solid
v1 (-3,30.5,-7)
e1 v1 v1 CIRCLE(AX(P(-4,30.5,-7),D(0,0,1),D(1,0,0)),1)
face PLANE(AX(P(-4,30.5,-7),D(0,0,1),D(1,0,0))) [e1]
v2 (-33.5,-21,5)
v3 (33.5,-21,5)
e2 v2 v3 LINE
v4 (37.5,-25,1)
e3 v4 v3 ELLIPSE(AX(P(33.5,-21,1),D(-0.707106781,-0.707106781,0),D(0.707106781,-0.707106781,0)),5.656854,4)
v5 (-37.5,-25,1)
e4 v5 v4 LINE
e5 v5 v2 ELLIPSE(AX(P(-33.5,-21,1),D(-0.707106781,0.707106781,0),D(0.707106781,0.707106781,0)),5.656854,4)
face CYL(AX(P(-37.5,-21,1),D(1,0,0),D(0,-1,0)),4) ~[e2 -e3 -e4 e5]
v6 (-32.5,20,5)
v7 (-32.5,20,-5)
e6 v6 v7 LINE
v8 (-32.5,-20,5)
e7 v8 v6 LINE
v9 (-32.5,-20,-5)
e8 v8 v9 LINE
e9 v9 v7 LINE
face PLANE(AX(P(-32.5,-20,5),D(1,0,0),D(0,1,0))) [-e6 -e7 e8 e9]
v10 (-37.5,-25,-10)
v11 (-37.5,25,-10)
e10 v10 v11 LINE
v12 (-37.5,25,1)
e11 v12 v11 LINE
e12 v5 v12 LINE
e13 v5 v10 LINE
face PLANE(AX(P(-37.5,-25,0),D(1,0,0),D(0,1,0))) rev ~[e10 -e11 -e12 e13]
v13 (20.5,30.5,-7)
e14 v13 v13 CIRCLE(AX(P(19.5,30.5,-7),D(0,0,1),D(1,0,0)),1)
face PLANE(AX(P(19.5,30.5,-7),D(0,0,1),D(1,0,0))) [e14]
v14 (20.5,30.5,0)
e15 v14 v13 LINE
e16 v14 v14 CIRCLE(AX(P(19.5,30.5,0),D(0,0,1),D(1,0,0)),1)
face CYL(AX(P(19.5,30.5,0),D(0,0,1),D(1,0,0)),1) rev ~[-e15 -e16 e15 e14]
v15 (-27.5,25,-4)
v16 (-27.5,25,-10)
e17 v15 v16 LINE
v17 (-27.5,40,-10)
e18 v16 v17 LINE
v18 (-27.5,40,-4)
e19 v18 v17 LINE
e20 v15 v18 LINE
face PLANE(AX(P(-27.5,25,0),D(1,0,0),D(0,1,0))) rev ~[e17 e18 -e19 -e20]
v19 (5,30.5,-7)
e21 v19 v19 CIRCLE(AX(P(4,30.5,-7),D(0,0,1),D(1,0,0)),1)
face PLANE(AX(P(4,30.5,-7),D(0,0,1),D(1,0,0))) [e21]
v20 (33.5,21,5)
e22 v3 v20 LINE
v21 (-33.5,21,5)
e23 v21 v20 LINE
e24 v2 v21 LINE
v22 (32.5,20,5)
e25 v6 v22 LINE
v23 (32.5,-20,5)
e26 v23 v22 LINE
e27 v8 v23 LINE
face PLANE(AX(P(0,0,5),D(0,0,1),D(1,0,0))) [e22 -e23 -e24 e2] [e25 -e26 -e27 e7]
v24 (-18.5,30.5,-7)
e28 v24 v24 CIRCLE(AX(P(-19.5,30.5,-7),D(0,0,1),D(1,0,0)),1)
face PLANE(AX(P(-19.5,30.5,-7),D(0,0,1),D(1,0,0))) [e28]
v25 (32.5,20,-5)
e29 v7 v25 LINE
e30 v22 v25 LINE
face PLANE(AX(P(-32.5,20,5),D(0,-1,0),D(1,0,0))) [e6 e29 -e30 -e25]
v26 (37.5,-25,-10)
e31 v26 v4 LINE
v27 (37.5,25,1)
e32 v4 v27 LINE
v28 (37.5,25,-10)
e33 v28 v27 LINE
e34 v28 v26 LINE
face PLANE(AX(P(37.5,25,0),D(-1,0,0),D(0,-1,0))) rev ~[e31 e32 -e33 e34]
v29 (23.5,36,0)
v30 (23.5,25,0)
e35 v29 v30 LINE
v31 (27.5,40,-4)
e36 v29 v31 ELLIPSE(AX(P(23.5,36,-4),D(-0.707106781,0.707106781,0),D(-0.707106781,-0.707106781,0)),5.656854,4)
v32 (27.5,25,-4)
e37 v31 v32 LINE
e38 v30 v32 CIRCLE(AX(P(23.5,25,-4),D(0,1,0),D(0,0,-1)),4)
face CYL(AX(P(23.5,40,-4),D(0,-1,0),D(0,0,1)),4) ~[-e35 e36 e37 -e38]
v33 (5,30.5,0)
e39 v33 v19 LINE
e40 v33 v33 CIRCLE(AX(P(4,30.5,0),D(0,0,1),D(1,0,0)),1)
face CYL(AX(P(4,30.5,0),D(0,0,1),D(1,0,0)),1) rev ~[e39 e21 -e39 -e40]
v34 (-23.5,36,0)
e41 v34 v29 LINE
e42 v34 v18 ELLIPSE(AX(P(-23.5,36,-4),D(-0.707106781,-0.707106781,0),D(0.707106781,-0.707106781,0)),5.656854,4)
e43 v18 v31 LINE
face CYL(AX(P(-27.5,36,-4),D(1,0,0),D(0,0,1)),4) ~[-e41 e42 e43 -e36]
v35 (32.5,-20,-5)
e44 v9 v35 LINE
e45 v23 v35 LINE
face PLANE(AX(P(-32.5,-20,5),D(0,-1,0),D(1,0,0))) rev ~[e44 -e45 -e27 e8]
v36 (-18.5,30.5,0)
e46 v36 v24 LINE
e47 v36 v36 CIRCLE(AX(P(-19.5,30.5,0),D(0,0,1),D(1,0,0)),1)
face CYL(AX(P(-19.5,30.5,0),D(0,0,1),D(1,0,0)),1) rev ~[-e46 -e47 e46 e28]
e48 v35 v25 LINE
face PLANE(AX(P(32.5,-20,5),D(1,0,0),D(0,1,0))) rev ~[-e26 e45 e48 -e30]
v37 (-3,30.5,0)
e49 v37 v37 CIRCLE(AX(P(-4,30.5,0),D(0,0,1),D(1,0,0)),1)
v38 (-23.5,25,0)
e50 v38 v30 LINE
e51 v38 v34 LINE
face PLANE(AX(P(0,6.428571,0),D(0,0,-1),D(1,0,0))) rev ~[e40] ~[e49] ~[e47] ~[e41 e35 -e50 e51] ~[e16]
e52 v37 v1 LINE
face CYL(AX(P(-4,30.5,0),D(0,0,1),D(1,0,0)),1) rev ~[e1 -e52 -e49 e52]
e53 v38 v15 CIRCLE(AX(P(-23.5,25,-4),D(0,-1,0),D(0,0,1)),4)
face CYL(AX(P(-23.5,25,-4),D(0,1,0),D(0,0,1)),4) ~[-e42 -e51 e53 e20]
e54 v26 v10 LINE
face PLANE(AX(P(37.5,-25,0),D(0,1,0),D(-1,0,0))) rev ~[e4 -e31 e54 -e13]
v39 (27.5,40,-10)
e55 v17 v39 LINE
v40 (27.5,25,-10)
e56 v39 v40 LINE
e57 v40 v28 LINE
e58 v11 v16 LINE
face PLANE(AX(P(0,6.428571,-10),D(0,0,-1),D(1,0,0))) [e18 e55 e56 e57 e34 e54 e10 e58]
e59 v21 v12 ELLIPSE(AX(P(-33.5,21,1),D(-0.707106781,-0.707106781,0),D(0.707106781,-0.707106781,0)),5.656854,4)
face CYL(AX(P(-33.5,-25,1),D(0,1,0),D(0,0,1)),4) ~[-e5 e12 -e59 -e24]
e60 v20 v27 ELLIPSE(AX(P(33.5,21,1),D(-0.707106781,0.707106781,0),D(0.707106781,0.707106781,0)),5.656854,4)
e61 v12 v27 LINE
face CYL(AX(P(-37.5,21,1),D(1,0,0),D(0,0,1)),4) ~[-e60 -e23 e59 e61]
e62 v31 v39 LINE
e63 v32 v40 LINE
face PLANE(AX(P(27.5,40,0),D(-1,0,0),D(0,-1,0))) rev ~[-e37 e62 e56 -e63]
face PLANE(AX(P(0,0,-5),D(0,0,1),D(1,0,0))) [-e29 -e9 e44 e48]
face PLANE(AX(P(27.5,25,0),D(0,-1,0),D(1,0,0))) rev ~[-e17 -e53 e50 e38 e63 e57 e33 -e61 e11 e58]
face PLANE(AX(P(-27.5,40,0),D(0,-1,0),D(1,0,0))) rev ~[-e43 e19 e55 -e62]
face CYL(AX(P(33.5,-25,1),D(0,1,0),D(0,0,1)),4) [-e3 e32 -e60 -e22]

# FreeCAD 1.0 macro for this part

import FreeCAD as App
import Part
import Sketcher
from FreeCAD import Vector


def edges_at(feature, points):
    """Names of the edges that pass closest to the given points."""
    edges = feature.Shape.Edges
    near = lambda p: min(range(len(edges)), key=lambda i: edges[i].distToShape(Part.Vertex(*p))[0])
    return sorted({f"Edge{near(p) + 1}" for p in points})


def add_polygon(sketch, points):
    """Adds a closed chain of lines whose ends are joined by coincident constraints."""
    first, n = sketch.GeometryCount, len(points)
    for a, b in zip(points, points[1:] + points[:1]):
        sketch.addGeometry(Part.LineSegment(App.Vector(*a, 0), App.Vector(*b, 0)), False)
    for i in range(n):
        sketch.addConstraint(Sketcher.Constraint("Coincident", first + i, 2, first + (i + 1) % n, 1))

doc = App.newDocument("Part")
params = doc.addObject("Spreadsheet::Sheet", "Params")
for row, (alias, value) in enumerate([
    ("sketch1_width", "75 mm"),
    ("sketch1_height", "50 mm"),
    ("pad1_length", "5 mm"),
    ("sketch2_width", "75 mm"),
    ("sketch2_width2", "10 mm"),
    ("sketch2_height", "50 mm"),
    ("sketch2_height2", "15 mm"),
    ("pad2_length", "10 mm"),
    ("fillet_radius", "4 mm"),
    ("sketch3_diameter", "2 mm"),
    ("pocket1_length", "7 mm"),
    ("sketch4_width", "65 mm"),
    ("sketch4_height", "40 mm"),
    ("pocket2_length", "10 mm"),
], start=1):
    params.set(f"A{row}", alias)
    params.set(f"B{row}", "=" + value)
    params.setAlias(f"B{row}", alias)

body = doc.addObject("PartDesign::Body", "Body")

# Sketch on XY plane
sketch1 = body.newObject("Sketcher::SketchObject", "Sketch")
sketch1.AttachmentSupport = (doc.getObject("XY_Plane"), [""])
sketch1.MapMode = "FlatFace"
add_polygon(sketch1, [(-38, 25), (-38, -25), (38, -25), (38, 25)])  # lines 0-3
sketch1.addConstraint(Sketcher.Constraint("Vertical", 0))
sketch1.addConstraint(Sketcher.Constraint("Horizontal", 1))
sketch1.addConstraint(Sketcher.Constraint("Vertical", 2))
sketch1.addConstraint(Sketcher.Constraint("Horizontal", 3))
sketch1.addConstraint(Sketcher.Constraint("Symmetric", 0, 2, 2, 2, -1, 1))
sketch1.addConstraint(Sketcher.Constraint("DistanceX", 1, 1, 1, 2, 75.0))
sketch1.addConstraint(Sketcher.Constraint("DistanceY", 0, 2, 0, 1, 50.0))
sketch1.setExpression("Constraints[9]", "Params.sketch1_width")
sketch1.setExpression("Constraints[10]", "Params.sketch1_height")
pad1 = body.newObject("PartDesign::Pad", "Pad")
pad1.Profile = sketch1
pad1.setExpression("Length", "Params.pad1_length")

# Sketch on XY plane
sketch2 = body.newObject("Sketcher::SketchObject", "Sketch001")
sketch2.AttachmentSupport = (doc.getObject("XY_Plane"), [""])
sketch2.MapMode = "FlatFace"
add_polygon(sketch2, [(38, -25), (-38, -25), (-38, 25), (-28, 25), (-28, 40), (28, 40), (28, 25), (38, 25)])  # lines 0-7
sketch2.addConstraint(Sketcher.Constraint("Horizontal", 0))
sketch2.addConstraint(Sketcher.Constraint("Vertical", 1))
sketch2.addConstraint(Sketcher.Constraint("Horizontal", 2))
sketch2.addConstraint(Sketcher.Constraint("Vertical", 3))
sketch2.addConstraint(Sketcher.Constraint("Horizontal", 4))
sketch2.addConstraint(Sketcher.Constraint("Vertical", 5))
sketch2.addConstraint(Sketcher.Constraint("Horizontal", 6))
sketch2.addConstraint(Sketcher.Constraint("Vertical", 7))
sketch2.addConstraint(Sketcher.Constraint("Symmetric", 0, 2, 6, 2, -1, 1))
sketch2.addConstraint(Sketcher.Constraint("Symmetric", 2, 2, 5, 2, -2))
sketch2.addConstraint(Sketcher.Constraint("DistanceX", 0, 2, 0, 1, 75.0))
sketch2.addConstraint(Sketcher.Constraint("DistanceX", 2, 1, 2, 2, 10.0))
sketch2.addConstraint(Sketcher.Constraint("DistanceY", 1, 1, 1, 2, 50.0))
sketch2.addConstraint(Sketcher.Constraint("DistanceY", 3, 1, 3, 2, 15.0))
sketch2.setExpression("Constraints[18]", "Params.sketch2_width")
sketch2.setExpression("Constraints[19]", "Params.sketch2_width2")
sketch2.setExpression("Constraints[20]", "Params.sketch2_height")
sketch2.setExpression("Constraints[21]", "Params.sketch2_height2")
pad2 = body.newObject("PartDesign::Pad", "Pad001")
pad2.Profile = sketch2
pad2.setExpression("Length", "Params.pad2_length")
pad2.Reversed = True
doc.recompute()

fillet = body.newObject("PartDesign::Fillet", "Fillet")
fillet.Base = (pad2, edges_at(pad2, [
    (0, -25, 5),
    (37.5, 0, 5),
    (0, 25, 5),
    (-37.5, 0, 5),
    (27.5, 32.5, 0),
    (0, 40, 0),
    (-27.5, 32.5, 0),
]))
fillet.setExpression("Radius", "Params.fillet_radius")

# Sketch on XY plane
sketch3 = body.newObject("Sketcher::SketchObject", "Sketch002")
sketch3.AttachmentSupport = (doc.getObject("XY_Plane"), [""])
sketch3.MapMode = "FlatFace"
sketch3.addGeometry(Part.Circle(Vector(-19.5, 30.5, 0), Vector(0, 0, 1), 1), False)
sketch3.addGeometry(Part.Circle(Vector(-4, 30.5, 0), Vector(0, 0, 1), 1), False)
sketch3.addGeometry(Part.Circle(Vector(4, 30.5, 0), Vector(0, 0, 1), 1), False)
sketch3.addGeometry(Part.Circle(Vector(19.5, 30.5, 0), Vector(0, 0, 1), 1), False)
sketch3.addConstraint(Sketcher.Constraint("Equal", 0, 1))
sketch3.addConstraint(Sketcher.Constraint("Equal", 1, 2))
sketch3.addConstraint(Sketcher.Constraint("Equal", 2, 3))
sketch3.addConstraint(Sketcher.Constraint("Symmetric", 1, 3, 2, 3, -2))
sketch3.addConstraint(Sketcher.Constraint("Symmetric", 0, 3, 3, 3, -2))
sketch3.addConstraint(Sketcher.Constraint("Horizontal", 0, 3, 1, 3))
sketch3.addConstraint(Sketcher.Constraint("Diameter", 0, 2.0))
sketch3.addConstraint(Sketcher.Constraint("DistanceX", 1, 3, -1, 1, 4.0))
sketch3.addConstraint(Sketcher.Constraint("DistanceX", 0, 3, 3, 3, 39.0))
sketch3.addConstraint(Sketcher.Constraint("DistanceY", -1, 1, 0, 3, 30.5))
sketch3.setExpression("Constraints[6]", "Params.sketch3_diameter")
pocket1 = body.newObject("PartDesign::Pocket", "Pocket")
pocket1.Profile = sketch3
pocket1.setExpression("Length", "Params.pocket1_length")

# Sketch on XY plane
sketch4 = body.newObject("Sketcher::SketchObject", "Sketch003")
sketch4.AttachmentSupport = (doc.getObject("XY_Plane"), [""])
sketch4.MapMode = "FlatFace"
sketch4.AttachmentOffset = App.Placement(Vector(0, 0, 5), App.Rotation())
add_polygon(sketch4, [(-32, 20), (-32, -20), (32, -20), (32, 20)])  # lines 0-3
sketch4.addConstraint(Sketcher.Constraint("Vertical", 0))
sketch4.addConstraint(Sketcher.Constraint("Horizontal", 1))
sketch4.addConstraint(Sketcher.Constraint("Vertical", 2))
sketch4.addConstraint(Sketcher.Constraint("Horizontal", 3))
sketch4.addConstraint(Sketcher.Constraint("Symmetric", 0, 2, 2, 2, -1, 1))
sketch4.addConstraint(Sketcher.Constraint("DistanceX", 1, 1, 1, 2, 65.0))
sketch4.addConstraint(Sketcher.Constraint("DistanceY", 0, 2, 0, 1, 40.0))
sketch4.setExpression("Constraints[9]", "Params.sketch4_width")
sketch4.setExpression("Constraints[10]", "Params.sketch4_height")
pocket2 = body.newObject("PartDesign::Pocket", "Pocket001")
pocket2.Profile = sketch4
pocket2.setExpression("Length", "Params.pocket2_length")

doc.recompute()
